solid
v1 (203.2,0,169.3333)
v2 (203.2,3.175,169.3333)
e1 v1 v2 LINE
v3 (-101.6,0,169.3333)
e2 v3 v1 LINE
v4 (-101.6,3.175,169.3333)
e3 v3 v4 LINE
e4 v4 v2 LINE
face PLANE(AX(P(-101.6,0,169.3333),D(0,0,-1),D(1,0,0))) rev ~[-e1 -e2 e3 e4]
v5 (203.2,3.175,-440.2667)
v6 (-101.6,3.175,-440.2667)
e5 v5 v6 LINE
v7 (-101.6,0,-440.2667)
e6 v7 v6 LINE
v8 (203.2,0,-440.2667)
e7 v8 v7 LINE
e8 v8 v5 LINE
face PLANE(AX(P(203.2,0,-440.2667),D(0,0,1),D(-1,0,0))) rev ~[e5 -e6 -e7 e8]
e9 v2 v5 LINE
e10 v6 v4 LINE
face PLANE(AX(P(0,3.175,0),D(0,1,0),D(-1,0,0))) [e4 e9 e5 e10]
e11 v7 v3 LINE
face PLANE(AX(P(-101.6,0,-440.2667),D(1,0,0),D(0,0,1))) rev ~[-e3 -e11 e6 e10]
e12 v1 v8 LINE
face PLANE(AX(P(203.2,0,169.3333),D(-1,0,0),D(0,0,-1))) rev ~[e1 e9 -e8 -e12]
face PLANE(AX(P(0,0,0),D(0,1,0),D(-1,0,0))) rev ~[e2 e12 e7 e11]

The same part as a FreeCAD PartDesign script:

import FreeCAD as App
import Part
import Sketcher
Q = App.Units.Quantity

doc = App.newDocument("Part")
body = doc.addObject("PartDesign::Body", "Body")

# Sketch on XZ plane
sketch1 = body.newObject("Sketcher::SketchObject", "Sketch")
sketch1.AttachmentSupport = (doc.getObject("XZ_Plane"), [""])
sketch1.MapMode = "FlatFace"
sketch1.addGeometry([
    Part.LineSegment(App.Vector(-101.6, -440.2667, 0), App.Vector(-101.6, 169.3333, 0)),
    Part.LineSegment(App.Vector(-101.6, 169.3333, 0), App.Vector(203.2, 169.3333, 0)),
    Part.LineSegment(App.Vector(203.2, 169.3333, 0), App.Vector(203.2, -440.2667, 0)),
    Part.LineSegment(App.Vector(203.2, -440.2667, 0), App.Vector(-101.6, -440.2667, 0)),
], False)
sketch1.addConstraint([
    Sketcher.Constraint("Coincident", 0, 2, 1, 1),
    Sketcher.Constraint("Coincident", 1, 2, 2, 1),
    Sketcher.Constraint("Coincident", 2, 2, 3, 1),
    Sketcher.Constraint("Coincident", 3, 2, 0, 1),
    Sketcher.Constraint("Vertical", 0),
    Sketcher.Constraint("Horizontal", 1),
    Sketcher.Constraint("Vertical", 2),
    Sketcher.Constraint("Horizontal", 3),
    Sketcher.Constraint("DistanceX", 1, 1, 1, 2, Q("12 in")),
    Sketcher.Constraint("DistanceY", 0, 1, 0, 2, Q("24 in")),
    Sketcher.Constraint("DistanceX", 0, 2, -1, 1, Q("4 in")),
    Sketcher.Constraint("DistanceY", -1, 1, 0, 2, 169.3333),
])
pad1 = body.newObject("PartDesign::Pad", "Pad")
pad1.Profile = sketch1
pad1.Length = Q("0.125 in")
pad1.Reversed = True

doc.recompute()
